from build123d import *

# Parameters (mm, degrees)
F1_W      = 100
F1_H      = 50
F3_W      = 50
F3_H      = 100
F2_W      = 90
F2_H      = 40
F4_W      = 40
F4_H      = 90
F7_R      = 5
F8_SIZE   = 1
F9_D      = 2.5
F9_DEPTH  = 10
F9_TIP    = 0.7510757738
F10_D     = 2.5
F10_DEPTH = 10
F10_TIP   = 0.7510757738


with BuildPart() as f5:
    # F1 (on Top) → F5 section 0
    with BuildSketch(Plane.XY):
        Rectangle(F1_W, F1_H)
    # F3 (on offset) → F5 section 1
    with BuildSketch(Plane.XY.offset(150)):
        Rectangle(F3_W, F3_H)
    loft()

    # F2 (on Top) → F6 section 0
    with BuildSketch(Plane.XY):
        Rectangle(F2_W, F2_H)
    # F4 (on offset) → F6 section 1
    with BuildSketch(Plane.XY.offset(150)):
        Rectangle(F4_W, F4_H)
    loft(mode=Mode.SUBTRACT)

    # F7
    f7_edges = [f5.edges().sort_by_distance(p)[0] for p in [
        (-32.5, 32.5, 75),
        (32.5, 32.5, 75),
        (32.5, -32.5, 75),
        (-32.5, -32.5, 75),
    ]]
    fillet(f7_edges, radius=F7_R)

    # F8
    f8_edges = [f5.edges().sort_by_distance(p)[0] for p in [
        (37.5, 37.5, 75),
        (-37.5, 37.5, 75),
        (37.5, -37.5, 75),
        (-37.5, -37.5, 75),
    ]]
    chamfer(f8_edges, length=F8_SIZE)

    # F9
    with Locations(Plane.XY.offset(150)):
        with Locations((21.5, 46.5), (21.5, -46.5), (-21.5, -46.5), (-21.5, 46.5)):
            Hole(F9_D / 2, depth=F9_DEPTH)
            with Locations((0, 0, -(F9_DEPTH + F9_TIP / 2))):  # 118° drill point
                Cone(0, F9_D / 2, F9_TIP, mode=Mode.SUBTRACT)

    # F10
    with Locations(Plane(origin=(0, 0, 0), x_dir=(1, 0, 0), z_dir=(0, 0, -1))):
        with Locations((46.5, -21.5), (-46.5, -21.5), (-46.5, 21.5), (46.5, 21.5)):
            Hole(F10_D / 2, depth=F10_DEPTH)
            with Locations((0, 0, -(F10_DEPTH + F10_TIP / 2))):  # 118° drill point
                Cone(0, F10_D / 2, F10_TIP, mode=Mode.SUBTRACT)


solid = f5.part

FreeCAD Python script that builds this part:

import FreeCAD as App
import Part
import Sketcher


def edges_at(feature, points):
    """Names of the edges that pass closest to the given points."""
    edges = feature.Shape.Edges
    near = lambda p: min(range(len(edges)), key=lambda i: edges[i].distToShape(Part.Vertex(*p))[0])
    return sorted({f"Edge{near(p) + 1}" for p in points})


def add_polygon(sketch, points):
    """Adds a closed chain of lines whose ends are joined by coincident constraints."""
    first, n = sketch.GeometryCount, len(points)
    for a, b in zip(points, points[1:] + points[:1]):
        sketch.addGeometry(Part.LineSegment(App.Vector(*a, 0), App.Vector(*b, 0)), False)
    for i in range(n):
        sketch.addConstraint(Sketcher.Constraint("Coincident", first + i, 2, first + (i + 1) % n, 1))

doc = App.newDocument("Part")
body = doc.addObject("PartDesign::Body", "Body")

# Sketch on XY plane
sketch1 = body.newObject("Sketcher::SketchObject", "Sketch")
sketch1.AttachmentSupport = (doc.getObject("XY_Plane"), [""])
sketch1.MapMode = "FlatFace"
add_polygon(sketch1, [(-50, 25), (-50, -25), (50, -25), (50, 25)])  # lines 0-3
sketch1.addConstraint(Sketcher.Constraint("Vertical", 0))
sketch1.addConstraint(Sketcher.Constraint("Horizontal", 1))
sketch1.addConstraint(Sketcher.Constraint("Vertical", 2))
sketch1.addConstraint(Sketcher.Constraint("Horizontal", 3))
sketch1.addConstraint(Sketcher.Constraint("Symmetric", 0, 2, 2, 2, -1, 1))
sketch1.addConstraint(Sketcher.Constraint("DistanceX", 1, 1, 1, 2, 100.0))
sketch1.addConstraint(Sketcher.Constraint("DistanceY", 0, 2, 0, 1, 50.0))

# Sketch on XY plane
sketch2 = body.newObject("Sketcher::SketchObject", "Sketch001")
sketch2.AttachmentSupport = (doc.getObject("XY_Plane"), [""])
sketch2.MapMode = "FlatFace"
sketch2.AttachmentOffset = App.Placement(App.Vector(0, 0, 150), App.Rotation())
add_polygon(sketch2, [(-25, 50), (-25, -50), (25, -50), (25, 50)])  # lines 0-3
sketch2.addConstraint(Sketcher.Constraint("Vertical", 0))
sketch2.addConstraint(Sketcher.Constraint("Horizontal", 1))
sketch2.addConstraint(Sketcher.Constraint("Vertical", 2))
sketch2.addConstraint(Sketcher.Constraint("Horizontal", 3))
sketch2.addConstraint(Sketcher.Constraint("Symmetric", 0, 2, 2, 2, -1, 1))
sketch2.addConstraint(Sketcher.Constraint("DistanceX", 1, 1, 1, 2, 50.0))
sketch2.addConstraint(Sketcher.Constraint("DistanceY", 0, 2, 0, 1, 100.0))

additiveloft = body.newObject("PartDesign::AdditiveLoft", "AdditiveLoft")
additiveloft.Profile = sketch1
additiveloft.Sections = [sketch2]

# Sketch on XY plane
sketch3 = body.newObject("Sketcher::SketchObject", "Sketch002")
sketch3.AttachmentSupport = (doc.getObject("XY_Plane"), [""])
sketch3.MapMode = "FlatFace"
add_polygon(sketch3, [(-45, 20), (-45, -20), (45, -20), (45, 20)])  # lines 0-3
sketch3.addConstraint(Sketcher.Constraint("Vertical", 0))
sketch3.addConstraint(Sketcher.Constraint("Horizontal", 1))
sketch3.addConstraint(Sketcher.Constraint("Vertical", 2))
sketch3.addConstraint(Sketcher.Constraint("Horizontal", 3))
sketch3.addConstraint(Sketcher.Constraint("Symmetric", 0, 2, 2, 2, -1, 1))
sketch3.addConstraint(Sketcher.Constraint("DistanceX", 1, 1, 1, 2, 90.0))
sketch3.addConstraint(Sketcher.Constraint("DistanceY", 0, 2, 0, 1, 40.0))

# Sketch on XY plane
sketch4 = body.newObject("Sketcher::SketchObject", "Sketch003")
sketch4.AttachmentSupport = (doc.getObject("XY_Plane"), [""])
sketch4.MapMode = "FlatFace"
sketch4.AttachmentOffset = App.Placement(App.Vector(0, 0, 150), App.Rotation())
add_polygon(sketch4, [(-20, 45), (-20, -45), (20, -45), (20, 45)])  # lines 0-3
sketch4.addConstraint(Sketcher.Constraint("Vertical", 0))
sketch4.addConstraint(Sketcher.Constraint("Horizontal", 1))
sketch4.addConstraint(Sketcher.Constraint("Vertical", 2))
sketch4.addConstraint(Sketcher.Constraint("Horizontal", 3))
sketch4.addConstraint(Sketcher.Constraint("Symmetric", 0, 2, 2, 2, -1, 1))
sketch4.addConstraint(Sketcher.Constraint("DistanceX", 1, 1, 1, 2, 40.0))
sketch4.addConstraint(Sketcher.Constraint("DistanceY", 0, 2, 0, 1, 90.0))

subtractiveloft = body.newObject("PartDesign::SubtractiveLoft", "SubtractiveLoft")
subtractiveloft.Profile = sketch3
subtractiveloft.Sections = [sketch4]
doc.recompute()

fillet = body.newObject("PartDesign::Fillet", "Fillet")
fillet.Base = (subtractiveloft, edges_at(subtractiveloft, [
    (-32.5, 32.5, 75),
    (32.5, 32.5, 75),
    (32.5, -32.5, 75),
    (-32.5, -32.5, 75),
]))
fillet.Radius = 5
doc.recompute()

chamfer = body.newObject("PartDesign::Chamfer", "Chamfer")
chamfer.Base = (fillet, edges_at(fillet, [
    (37.5, 37.5, 75),
    (-37.5, 37.5, 75),
    (37.5, -37.5, 75),
    (-37.5, -37.5, 75),
]))
chamfer.Size = 1

# Sketch on XY plane
sketch5 = body.newObject("Sketcher::SketchObject", "Sketch004")
sketch5.AttachmentSupport = (doc.getObject("XY_Plane"), [""])
sketch5.MapMode = "FlatFace"
sketch5.AttachmentOffset = App.Placement(App.Vector(0, 0, 150), App.Rotation())
sketch5.addGeometry(Part.Circle(App.Vector(21.5, 46.5, 0), App.Vector(0, 0, 1), 1.2), False)
sketch5.addGeometry(Part.Circle(App.Vector(21.5, -46.5, 0), App.Vector(0, 0, 1), 1.2), False)
sketch5.addGeometry(Part.Circle(App.Vector(-21.5, -46.5, 0), App.Vector(0, 0, 1), 1.2), False)
sketch5.addGeometry(Part.Circle(App.Vector(-21.5, 46.5, 0), App.Vector(0, 0, 1), 1.2), False)
sketch5.addConstraint(Sketcher.Constraint("Equal", 0, 1))
sketch5.addConstraint(Sketcher.Constraint("Equal", 1, 2))
sketch5.addConstraint(Sketcher.Constraint("Equal", 2, 3))
sketch5.addConstraint(Sketcher.Constraint("Symmetric", 0, 3, 2, 3, -1, 1))
sketch5.addConstraint(Sketcher.Constraint("Symmetric", 1, 3, 3, 3, -1, 1))
sketch5.addConstraint(Sketcher.Constraint("Symmetric", 1, 3, 2, 3, -2))
sketch5.addConstraint(Sketcher.Constraint("Diameter", 0, 2.5))
sketch5.addConstraint(Sketcher.Constraint("DistanceY", 1, 3, 0, 3, 93.0))
sketch5.addConstraint(Sketcher.Constraint("DistanceX", 2, 3, 1, 3, 43.0))
doc.recompute()
hole = body.newObject("PartDesign::Hole", "Hole")
hole.Profile = sketch5
hole.ThreadType = "None"
hole.Diameter = 2.5
hole.DepthType = "Dimension"
hole.Depth = 10
hole.DrillPoint = "Angled"
hole.DrillPointAngle = 118

# Sketch on XY plane
sketch6 = body.newObject("Sketcher::SketchObject", "Sketch005")
sketch6.AttachmentSupport = (doc.getObject("XY_Plane"), [""])
sketch6.MapMode = "FlatFace"
sketch6.addGeometry(Part.Circle(App.Vector(46.5, 21.5, 0), App.Vector(0, 0, 1), 1.2), False)
sketch6.addGeometry(Part.Circle(App.Vector(-46.5, 21.5, 0), App.Vector(0, 0, 1), 1.2), False)
sketch6.addGeometry(Part.Circle(App.Vector(-46.5, -21.5, 0), App.Vector(0, 0, 1), 1.2), False)
sketch6.addGeometry(Part.Circle(App.Vector(46.5, -21.5, 0), App.Vector(0, 0, 1), 1.2), False)
sketch6.addConstraint(Sketcher.Constraint("Equal", 0, 1))
sketch6.addConstraint(Sketcher.Constraint("Equal", 1, 2))
sketch6.addConstraint(Sketcher.Constraint("Equal", 2, 3))
sketch6.addConstraint(Sketcher.Constraint("Symmetric", 0, 3, 2, 3, -1, 1))
sketch6.addConstraint(Sketcher.Constraint("Symmetric", 1, 3, 3, 3, -1, 1))
sketch6.addConstraint(Sketcher.Constraint("Symmetric", 0, 3, 1, 3, -2))
sketch6.addConstraint(Sketcher.Constraint("Diameter", 0, 2.5))
sketch6.addConstraint(Sketcher.Constraint("DistanceX", 1, 3, 0, 3, 93.0))
sketch6.addConstraint(Sketcher.Constraint("DistanceY", 2, 3, 1, 3, 43.0))
doc.recompute()
hole2 = body.newObject("PartDesign::Hole", "Hole001")
hole2.Profile = sketch6
hole2.ThreadType = "None"
hole2.Diameter = 2.5
hole2.DepthType = "Dimension"
hole2.Depth = 10
hole2.DrillPoint = "Angled"
hole2.DrillPointAngle = 118
hole2.Reversed = True

doc.recompute()
